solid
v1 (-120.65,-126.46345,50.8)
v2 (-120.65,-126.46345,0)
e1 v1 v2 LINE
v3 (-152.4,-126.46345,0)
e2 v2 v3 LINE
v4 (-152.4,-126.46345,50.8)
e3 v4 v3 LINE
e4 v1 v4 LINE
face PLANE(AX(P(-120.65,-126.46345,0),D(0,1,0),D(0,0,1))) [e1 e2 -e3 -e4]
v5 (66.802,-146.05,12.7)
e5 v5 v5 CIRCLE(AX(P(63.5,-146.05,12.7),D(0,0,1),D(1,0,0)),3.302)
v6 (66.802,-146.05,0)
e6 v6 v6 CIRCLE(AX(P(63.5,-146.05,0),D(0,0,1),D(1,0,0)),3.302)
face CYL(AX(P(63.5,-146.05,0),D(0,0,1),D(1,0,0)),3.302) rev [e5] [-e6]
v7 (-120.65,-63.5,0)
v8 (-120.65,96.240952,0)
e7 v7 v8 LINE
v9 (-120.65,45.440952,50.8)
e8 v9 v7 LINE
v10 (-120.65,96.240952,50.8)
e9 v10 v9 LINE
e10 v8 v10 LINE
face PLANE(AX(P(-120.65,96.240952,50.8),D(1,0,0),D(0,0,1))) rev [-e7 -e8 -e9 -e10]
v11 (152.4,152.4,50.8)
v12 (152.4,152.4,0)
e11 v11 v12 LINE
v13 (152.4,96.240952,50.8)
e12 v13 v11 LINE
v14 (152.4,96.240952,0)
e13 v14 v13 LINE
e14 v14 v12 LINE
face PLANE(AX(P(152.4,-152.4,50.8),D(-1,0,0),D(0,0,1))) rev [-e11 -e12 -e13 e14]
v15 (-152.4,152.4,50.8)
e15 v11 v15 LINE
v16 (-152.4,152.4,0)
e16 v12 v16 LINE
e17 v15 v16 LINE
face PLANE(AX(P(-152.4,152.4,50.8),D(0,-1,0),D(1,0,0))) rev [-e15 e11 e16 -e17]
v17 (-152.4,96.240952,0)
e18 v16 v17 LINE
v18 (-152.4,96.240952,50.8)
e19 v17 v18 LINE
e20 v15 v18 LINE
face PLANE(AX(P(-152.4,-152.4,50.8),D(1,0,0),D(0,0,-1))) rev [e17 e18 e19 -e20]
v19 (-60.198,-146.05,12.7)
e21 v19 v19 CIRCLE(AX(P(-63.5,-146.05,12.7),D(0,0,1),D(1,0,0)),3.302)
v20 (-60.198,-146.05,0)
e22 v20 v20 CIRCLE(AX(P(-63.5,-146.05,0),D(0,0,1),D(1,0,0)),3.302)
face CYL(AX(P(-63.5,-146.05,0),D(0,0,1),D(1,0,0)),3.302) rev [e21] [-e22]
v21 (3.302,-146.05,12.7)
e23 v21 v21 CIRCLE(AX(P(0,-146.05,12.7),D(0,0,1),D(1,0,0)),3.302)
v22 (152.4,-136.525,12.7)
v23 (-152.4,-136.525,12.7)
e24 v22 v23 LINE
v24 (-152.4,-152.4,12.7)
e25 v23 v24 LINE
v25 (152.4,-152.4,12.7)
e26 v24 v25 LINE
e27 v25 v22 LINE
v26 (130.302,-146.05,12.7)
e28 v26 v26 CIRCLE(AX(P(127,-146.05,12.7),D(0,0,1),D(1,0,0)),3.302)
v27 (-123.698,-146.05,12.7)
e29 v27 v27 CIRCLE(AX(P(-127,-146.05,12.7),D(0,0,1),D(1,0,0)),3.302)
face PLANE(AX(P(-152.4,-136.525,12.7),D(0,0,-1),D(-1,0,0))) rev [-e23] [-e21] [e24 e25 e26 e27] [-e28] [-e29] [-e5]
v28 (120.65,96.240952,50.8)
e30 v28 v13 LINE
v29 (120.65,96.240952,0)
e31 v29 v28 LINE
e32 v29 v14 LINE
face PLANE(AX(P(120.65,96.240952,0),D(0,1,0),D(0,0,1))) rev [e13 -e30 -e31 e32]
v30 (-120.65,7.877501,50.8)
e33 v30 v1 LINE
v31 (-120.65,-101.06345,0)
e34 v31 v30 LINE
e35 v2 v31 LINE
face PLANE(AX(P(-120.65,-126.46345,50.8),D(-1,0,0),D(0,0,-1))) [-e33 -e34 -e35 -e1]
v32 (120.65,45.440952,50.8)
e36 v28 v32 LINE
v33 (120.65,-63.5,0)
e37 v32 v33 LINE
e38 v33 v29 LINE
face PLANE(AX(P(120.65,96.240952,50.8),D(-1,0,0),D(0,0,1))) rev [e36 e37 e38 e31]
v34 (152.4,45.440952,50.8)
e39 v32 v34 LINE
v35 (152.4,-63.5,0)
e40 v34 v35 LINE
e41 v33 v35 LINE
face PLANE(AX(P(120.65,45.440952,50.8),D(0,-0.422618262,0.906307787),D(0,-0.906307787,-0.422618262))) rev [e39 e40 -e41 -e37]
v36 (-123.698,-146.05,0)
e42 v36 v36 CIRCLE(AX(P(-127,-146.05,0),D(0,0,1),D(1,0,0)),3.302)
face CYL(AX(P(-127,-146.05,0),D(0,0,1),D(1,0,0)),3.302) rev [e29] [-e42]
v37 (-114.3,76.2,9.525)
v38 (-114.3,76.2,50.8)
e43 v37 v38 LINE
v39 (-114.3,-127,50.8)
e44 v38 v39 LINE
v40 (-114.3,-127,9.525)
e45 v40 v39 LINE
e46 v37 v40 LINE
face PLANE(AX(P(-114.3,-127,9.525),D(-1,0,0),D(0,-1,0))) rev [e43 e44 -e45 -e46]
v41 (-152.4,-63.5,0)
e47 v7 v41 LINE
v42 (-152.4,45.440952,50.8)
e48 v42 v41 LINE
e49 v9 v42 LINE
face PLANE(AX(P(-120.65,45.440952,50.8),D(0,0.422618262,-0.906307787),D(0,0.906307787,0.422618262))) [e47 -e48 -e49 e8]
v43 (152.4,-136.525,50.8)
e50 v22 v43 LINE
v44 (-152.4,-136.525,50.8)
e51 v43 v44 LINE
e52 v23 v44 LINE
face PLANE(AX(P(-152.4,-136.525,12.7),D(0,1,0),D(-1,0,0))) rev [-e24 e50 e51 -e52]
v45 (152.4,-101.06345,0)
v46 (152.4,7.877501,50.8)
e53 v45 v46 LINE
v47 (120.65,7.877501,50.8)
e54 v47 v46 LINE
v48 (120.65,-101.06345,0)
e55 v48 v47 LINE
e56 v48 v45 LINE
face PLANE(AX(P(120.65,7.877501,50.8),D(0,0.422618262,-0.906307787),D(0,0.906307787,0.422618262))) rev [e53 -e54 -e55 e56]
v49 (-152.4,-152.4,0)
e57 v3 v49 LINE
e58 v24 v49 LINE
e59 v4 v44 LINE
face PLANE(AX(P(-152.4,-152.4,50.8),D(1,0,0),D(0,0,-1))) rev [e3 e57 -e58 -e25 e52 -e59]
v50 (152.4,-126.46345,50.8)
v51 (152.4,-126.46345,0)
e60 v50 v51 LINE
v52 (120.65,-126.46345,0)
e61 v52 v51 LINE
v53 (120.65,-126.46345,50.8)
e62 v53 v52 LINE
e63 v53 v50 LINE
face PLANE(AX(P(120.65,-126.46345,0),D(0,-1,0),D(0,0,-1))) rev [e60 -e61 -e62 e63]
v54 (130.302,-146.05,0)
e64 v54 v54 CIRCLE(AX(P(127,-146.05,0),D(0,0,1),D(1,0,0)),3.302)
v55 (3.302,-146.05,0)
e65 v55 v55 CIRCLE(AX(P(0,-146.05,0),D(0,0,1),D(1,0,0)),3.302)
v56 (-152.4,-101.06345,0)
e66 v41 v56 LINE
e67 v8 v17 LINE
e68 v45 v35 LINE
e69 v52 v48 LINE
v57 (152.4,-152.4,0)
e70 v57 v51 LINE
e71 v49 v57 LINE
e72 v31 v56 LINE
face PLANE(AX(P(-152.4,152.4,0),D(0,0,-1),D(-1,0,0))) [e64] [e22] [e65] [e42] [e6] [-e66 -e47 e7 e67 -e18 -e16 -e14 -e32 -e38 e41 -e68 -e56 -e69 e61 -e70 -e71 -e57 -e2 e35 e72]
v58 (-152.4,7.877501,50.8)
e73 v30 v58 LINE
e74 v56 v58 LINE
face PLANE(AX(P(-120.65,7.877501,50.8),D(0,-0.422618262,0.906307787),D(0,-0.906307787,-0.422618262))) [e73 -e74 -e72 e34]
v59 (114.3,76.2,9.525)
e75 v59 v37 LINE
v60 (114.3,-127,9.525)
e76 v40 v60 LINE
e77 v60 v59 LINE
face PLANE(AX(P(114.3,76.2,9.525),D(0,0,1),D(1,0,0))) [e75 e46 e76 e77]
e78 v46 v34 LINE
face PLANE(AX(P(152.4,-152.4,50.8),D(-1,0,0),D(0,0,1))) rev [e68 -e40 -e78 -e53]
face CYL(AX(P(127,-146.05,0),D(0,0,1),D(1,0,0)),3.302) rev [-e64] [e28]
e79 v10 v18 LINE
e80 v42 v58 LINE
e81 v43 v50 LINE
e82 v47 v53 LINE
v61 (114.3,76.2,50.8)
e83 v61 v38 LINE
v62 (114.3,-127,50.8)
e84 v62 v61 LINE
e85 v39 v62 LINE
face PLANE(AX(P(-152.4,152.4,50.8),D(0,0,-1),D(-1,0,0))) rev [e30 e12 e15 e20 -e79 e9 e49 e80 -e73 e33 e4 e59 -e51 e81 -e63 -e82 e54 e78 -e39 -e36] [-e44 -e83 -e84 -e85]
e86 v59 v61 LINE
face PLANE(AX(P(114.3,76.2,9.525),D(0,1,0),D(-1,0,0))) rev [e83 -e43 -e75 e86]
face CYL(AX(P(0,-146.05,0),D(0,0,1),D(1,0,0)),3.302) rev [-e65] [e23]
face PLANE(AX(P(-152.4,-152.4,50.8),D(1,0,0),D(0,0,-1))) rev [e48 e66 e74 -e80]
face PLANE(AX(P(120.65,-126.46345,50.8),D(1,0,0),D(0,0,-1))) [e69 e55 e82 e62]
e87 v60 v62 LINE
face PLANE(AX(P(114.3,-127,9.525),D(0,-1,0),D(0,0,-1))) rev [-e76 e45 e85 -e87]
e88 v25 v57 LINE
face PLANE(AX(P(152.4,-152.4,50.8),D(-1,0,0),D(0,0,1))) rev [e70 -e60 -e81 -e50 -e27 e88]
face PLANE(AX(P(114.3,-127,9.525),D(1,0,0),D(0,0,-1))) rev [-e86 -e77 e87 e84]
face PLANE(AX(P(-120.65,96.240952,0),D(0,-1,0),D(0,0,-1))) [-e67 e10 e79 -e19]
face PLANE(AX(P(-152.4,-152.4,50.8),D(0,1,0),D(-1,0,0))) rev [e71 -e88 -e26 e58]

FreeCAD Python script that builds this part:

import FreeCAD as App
import Part
import Sketcher

V = App.Vector
Q = App.Units.Quantity


def add_polygon(sketch, points):
    """Adds a closed chain of lines whose ends are joined by coincident constraints."""
    first, n = sketch.GeometryCount, len(points)
    for a, b in zip(points, points[1:] + points[:1]):
        sketch.addGeometry(Part.LineSegment(App.Vector(*a, 0), App.Vector(*b, 0)), False)
    for i in range(n):
        sketch.addConstraint(Sketcher.Constraint("Coincident", first + i, 2, first + (i + 1) % n, 1))

doc = App.newDocument("Part")
body = doc.addObject("PartDesign::Body", "Body")

# Sketch on XY plane
sketch1 = body.newObject("Sketcher::SketchObject", "Sketch")
sketch1.AttachmentSupport = (doc.getObject("XY_Plane"), [""])
sketch1.MapMode = "FlatFace"
add_polygon(sketch1, [(-152, 152), (-152, -152), (152, -152), (152, 152)])  # lines 0-3
sketch1.addConstraint(Sketcher.Constraint("Vertical", 0))
sketch1.addConstraint(Sketcher.Constraint("Horizontal", 1))
sketch1.addConstraint(Sketcher.Constraint("Vertical", 2))
sketch1.addConstraint(Sketcher.Constraint("Horizontal", 3))
sketch1.addConstraint(Sketcher.Constraint("Symmetric", 0, 2, 2, 2, -1, 1))
sketch1.addConstraint(Sketcher.Constraint("Equal", 3, 0))
sketch1.addConstraint(Sketcher.Constraint("DistanceX", 1, 1, 1, 2, Q("12 in")))
pad1 = body.newObject("PartDesign::Pad", "Pad")
pad1.Profile = sketch1
pad1.Length = Q("2 in")

# Sketch on XY plane
sketch2 = body.newObject("Sketcher::SketchObject", "Sketch001")
sketch2.AttachmentSupport = (doc.getObject("XY_Plane"), [""])
sketch2.MapMode = "FlatFace"
sketch2.AttachmentOffset = App.Placement(V(0, 0, 2 * 25.4), App.Rotation())
add_polygon(sketch2, [(-114, 76), (-114, -127), (114, -127), (114, 76)])  # lines 0-3
sketch2.addConstraint(Sketcher.Constraint("Vertical", 0))
sketch2.addConstraint(Sketcher.Constraint("Horizontal", 1))
sketch2.addConstraint(Sketcher.Constraint("Vertical", 2))
sketch2.addConstraint(Sketcher.Constraint("Horizontal", 3))
sketch2.addConstraint(Sketcher.Constraint("DistanceX", 1, 1, 1, 2, Q("9 in")))
sketch2.addConstraint(Sketcher.Constraint("DistanceY", 0, 2, 0, 1, Q("8 in")))
sketch2.addConstraint(Sketcher.Constraint("DistanceY", 0, 2, -1, 1, Q("5 in")))
sketch2.addConstraint(Sketcher.Constraint("DistanceX", 0, 2, -1, 1, Q("4.5 in")))
pocket1 = body.newObject("PartDesign::Pocket", "Pocket")
pocket1.Profile = sketch2
pocket1.Length = Q("1.625 in")

# Sketch on XY plane
sketch3 = body.newObject("Sketcher::SketchObject", "Sketch002")
sketch3.AttachmentSupport = (doc.getObject("XY_Plane"), [""])
sketch3.MapMode = "FlatFace"
sketch3.AttachmentOffset = App.Placement(V(0, 0, 2 * 25.4), App.Rotation())
add_polygon(sketch3, [(-152, -137), (-152, -152), (152, -152), (152, -137)])  # lines 0-3
sketch3.addConstraint(Sketcher.Constraint("Vertical", 0))
sketch3.addConstraint(Sketcher.Constraint("Horizontal", 1))
sketch3.addConstraint(Sketcher.Constraint("Vertical", 2))
sketch3.addConstraint(Sketcher.Constraint("Horizontal", 3))
sketch3.addConstraint(Sketcher.Constraint("DistanceX", 1, 1, 1, 2, Q("12 in")))
sketch3.addConstraint(Sketcher.Constraint("DistanceX", 0, 2, -1, 1, Q("6 in")))
sketch3.addConstraint(Sketcher.Constraint("DistanceY", 0, 2, -1, 1, Q("6 in")))
sketch3.addConstraint(Sketcher.Constraint("DistanceY", 0, 2, 0, 1, Q("0.625 in")))
pocket2 = body.newObject("PartDesign::Pocket", "Pocket001")
pocket2.Profile = sketch3
pocket2.Length = Q("1.5 in")

# Sketch on XY plane
sketch4 = body.newObject("Sketcher::SketchObject", "Sketch003")
sketch4.AttachmentSupport = (doc.getObject("XY_Plane"), [""])
sketch4.MapMode = "FlatFace"
sketch4.AttachmentOffset = App.Placement(V(0, 0, 0.5 * 25.4), App.Rotation())
sketch4.addGeometry(Part.Circle(V(-127, -146.1, 0), V(0, 0, 1), 3.3), False)
sketch4.addGeometry(Part.Circle(V(127, -146.1, 0), V(0, 0, 1), 3.3), False)
sketch4.addGeometry(Part.Circle(V(-63.5, -146.1, 0), V(0, 0, 1), 3.3), False)
sketch4.addGeometry(Part.Circle(V(0, -146.1, 0), V(0, 0, 1), 3.3), False)
sketch4.addGeometry(Part.Circle(V(63.5, -146.1, 0), V(0, 0, 1), 3.3), False)
sketch4.addConstraint(Sketcher.Constraint("Equal", 0, 1))
sketch4.addConstraint(Sketcher.Constraint("Equal", 1, 2))
sketch4.addConstraint(Sketcher.Constraint("Equal", 2, 3))
sketch4.addConstraint(Sketcher.Constraint("Equal", 3, 4))
sketch4.addConstraint(Sketcher.Constraint("Symmetric", 0, 3, 1, 3, -2))
sketch4.addConstraint(Sketcher.Constraint("Symmetric", 2, 3, 4, 3, -2))
sketch4.addConstraint(Sketcher.Constraint("PointOnObject", 3, 3, -2))
sketch4.addConstraint(Sketcher.Constraint("Horizontal", 1, 3, 2, 3))
sketch4.addConstraint(Sketcher.Constraint("Horizontal", 2, 3, 3, 3))
sketch4.addConstraint(Sketcher.Constraint("Diameter", 0, Q("0.26 in")))
sketch4.addConstraint(Sketcher.Constraint("DistanceX", 0, 3, -1, 1, Q("5 in")))
sketch4.addConstraint(Sketcher.Constraint("DistanceX", 2, 3, 4, 3, Q("5 in")))
sketch4.addConstraint(Sketcher.Constraint("DistanceY", 0, 3, -1, 1, Q("5.75 in")))
pocket3 = body.newObject("PartDesign::Pocket", "Pocket002")
pocket3.Profile = sketch4
pocket3.Type = "ThroughAll"

# Sketch on YZ plane
sketch5 = body.newObject("Sketcher::SketchObject", "Sketch004")
sketch5.AttachmentSupport = (doc.getObject("YZ_Plane"), [""])
sketch5.MapMode = "FlatFace"
sketch5.AttachmentOffset = App.Placement(V(0, 0, 6 * 25.4), App.Rotation())
add_polygon(sketch5, [(45, 51), (-64, 0), (96, 0), (96, 51)])  # lines 0-3
add_polygon(sketch5, [(-101, 0), (8, 51), (-126, 51), (-126, 0)])  # lines 4-7
sketch5.addConstraint(Sketcher.Constraint("Horizontal", 1))
sketch5.addConstraint(Sketcher.Constraint("Vertical", 2))
sketch5.addConstraint(Sketcher.Constraint("Horizontal", 3))
sketch5.addConstraint(Sketcher.Constraint("Horizontal", 5))
sketch5.addConstraint(Sketcher.Constraint("Vertical", 6))
sketch5.addConstraint(Sketcher.Constraint("Horizontal", 7))
sketch5.addConstraint(Sketcher.Constraint("PointOnObject", 0, 2, -1))
sketch5.addConstraint(Sketcher.Constraint("PointOnObject", 6, 2, -1))
sketch5.addConstraint(Sketcher.Constraint("Parallel", 0, 4))
sketch5.addConstraint(Sketcher.Constraint("Horizontal", 3, 2, 4, 2))
sketch5.addConstraint(Sketcher.Constraint("Equal", 3, 2))
sketch5.addConstraint(Sketcher.Constraint("DistanceX", 3, 2, 3, 1, Q("2 in")))
sketch5.addConstraint(Sketcher.Constraint("DistanceX", 7, 1, 7, 2, Q("1 in")))
sketch5.addConstraint(Sketcher.Constraint("Angle", 0, Q("-155 deg")))
sketch5.addConstraint(Sketcher.Constraint("DistanceX", 0, 2, -1, 1, Q("2.5 in")))
sketch5.addConstraint(Sketcher.Constraint("DistanceX", -1, 1, 4, 2, Q("7.877501 mm")))
pocket4 = body.newObject("PartDesign::Pocket", "Pocket003")
pocket4.Profile = sketch5
pocket4.Length = Q("1.25 in")
doc.recompute()

mirrored = body.newObject("PartDesign::Mirrored", "Mirrored")
mirrored.Originals = [pocket4]
mirrored.MirrorPlane = (doc.getObject("YZ_Plane"), [""])
body.Tip = mirrored

doc.recompute()
